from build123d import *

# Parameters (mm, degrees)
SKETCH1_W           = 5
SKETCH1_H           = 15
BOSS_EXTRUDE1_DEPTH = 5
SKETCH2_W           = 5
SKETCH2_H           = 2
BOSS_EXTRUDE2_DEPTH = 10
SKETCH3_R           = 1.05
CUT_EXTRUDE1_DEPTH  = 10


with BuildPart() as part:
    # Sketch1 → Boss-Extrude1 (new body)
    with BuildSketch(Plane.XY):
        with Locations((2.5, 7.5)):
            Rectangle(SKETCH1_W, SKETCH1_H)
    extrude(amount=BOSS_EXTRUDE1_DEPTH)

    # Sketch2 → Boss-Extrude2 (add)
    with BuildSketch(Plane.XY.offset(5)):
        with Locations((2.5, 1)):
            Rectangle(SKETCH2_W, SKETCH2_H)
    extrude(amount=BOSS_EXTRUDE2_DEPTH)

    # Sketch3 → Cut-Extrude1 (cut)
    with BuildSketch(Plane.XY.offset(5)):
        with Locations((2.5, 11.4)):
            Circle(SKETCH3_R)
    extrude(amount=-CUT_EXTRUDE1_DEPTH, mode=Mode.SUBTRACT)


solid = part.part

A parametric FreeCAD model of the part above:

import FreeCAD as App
import Part
import Sketcher
from FreeCAD import Vector
Q = App.Units.Quantity


def add_polygon(sketch, points):
    """Adds a closed chain of lines whose ends are joined by coincident constraints."""
    first, n = sketch.GeometryCount, len(points)
    for a, b in zip(points, points[1:] + points[:1]):
        sketch.addGeometry(Part.LineSegment(App.Vector(*a, 0), App.Vector(*b, 0)), False)
    for i in range(n):
        sketch.addConstraint(Sketcher.Constraint("Coincident", first + i, 2, first + (i + 1) % n, 1))

doc = App.newDocument("Part")
body = doc.addObject("PartDesign::Body", "Body")

# Sketch on XY plane
sketch1 = body.newObject("Sketcher::SketchObject", "Sketch")
sketch1.AttachmentSupport = (doc.getObject("XY_Plane"), [""])
sketch1.MapMode = "FlatFace"
add_polygon(sketch1, [(0, 15), (0, 0), (5, 0), (5, 15)])  # lines 0-3
sketch1.addConstraint([
    Sketcher.Constraint("Vertical", 0),
    Sketcher.Constraint("Horizontal", 1),
    Sketcher.Constraint("Vertical", 2),
    Sketcher.Constraint("Horizontal", 3),
    Sketcher.Constraint("Coincident", 0, 2, -1, 1),
    Sketcher.Constraint("DistanceX", 1, 1, 1, 2, Q("5 mm")),
    Sketcher.Constraint("DistanceY", 0, 2, 0, 1, Q("15 mm")),
])
pad1 = body.newObject("PartDesign::Pad", "Pad")
pad1.Profile = sketch1
pad1.Length = 5

# Sketch on XY plane
sketch2 = body.newObject("Sketcher::SketchObject", "Sketch001")
sketch2.AttachmentSupport = (doc.getObject("XY_Plane"), [""])
sketch2.MapMode = "FlatFace"
sketch2.AttachmentOffset = App.Placement(Vector(0, 0, 5), App.Rotation())
add_polygon(sketch2, [(0, 2), (0, 0), (5, 0), (5, 2)])  # lines 0-3
sketch2.addConstraint([
    Sketcher.Constraint("Vertical", 0),
    Sketcher.Constraint("Horizontal", 1),
    Sketcher.Constraint("Vertical", 2),
    Sketcher.Constraint("Horizontal", 3),
    Sketcher.Constraint("Coincident", 0, 2, -1, 1),
    Sketcher.Constraint("DistanceX", 1, 1, 1, 2, Q("5 mm")),
    Sketcher.Constraint("DistanceY", 0, 2, 0, 1, Q("2 mm")),
])
pad2 = body.newObject("PartDesign::Pad", "Pad001")
pad2.Profile = sketch2
pad2.Length = 10

# Sketch on XY plane
sketch3 = body.newObject("Sketcher::SketchObject", "Sketch002")
sketch3.AttachmentSupport = (doc.getObject("XY_Plane"), [""])
sketch3.MapMode = "FlatFace"
sketch3.AttachmentOffset = App.Placement(Vector(0, 0, 5), App.Rotation())
sketch3.addGeometry(Part.Circle(Vector(2.5, 11.4, 0), Vector(0, 0, 1), 1.05), False)
sketch3.addConstraint([
    Sketcher.Constraint("Diameter", 0, Q("2.1 mm")),
    Sketcher.Constraint("DistanceX", -1, 1, 0, 3, Q("2.5 mm")),
    Sketcher.Constraint("DistanceY", -1, 1, 0, 3, Q("11.4 mm")),
])
pocket1 = body.newObject("PartDesign::Pocket", "Pocket")
pocket1.Profile = sketch3
pocket1.Length = 10

doc.recompute()
